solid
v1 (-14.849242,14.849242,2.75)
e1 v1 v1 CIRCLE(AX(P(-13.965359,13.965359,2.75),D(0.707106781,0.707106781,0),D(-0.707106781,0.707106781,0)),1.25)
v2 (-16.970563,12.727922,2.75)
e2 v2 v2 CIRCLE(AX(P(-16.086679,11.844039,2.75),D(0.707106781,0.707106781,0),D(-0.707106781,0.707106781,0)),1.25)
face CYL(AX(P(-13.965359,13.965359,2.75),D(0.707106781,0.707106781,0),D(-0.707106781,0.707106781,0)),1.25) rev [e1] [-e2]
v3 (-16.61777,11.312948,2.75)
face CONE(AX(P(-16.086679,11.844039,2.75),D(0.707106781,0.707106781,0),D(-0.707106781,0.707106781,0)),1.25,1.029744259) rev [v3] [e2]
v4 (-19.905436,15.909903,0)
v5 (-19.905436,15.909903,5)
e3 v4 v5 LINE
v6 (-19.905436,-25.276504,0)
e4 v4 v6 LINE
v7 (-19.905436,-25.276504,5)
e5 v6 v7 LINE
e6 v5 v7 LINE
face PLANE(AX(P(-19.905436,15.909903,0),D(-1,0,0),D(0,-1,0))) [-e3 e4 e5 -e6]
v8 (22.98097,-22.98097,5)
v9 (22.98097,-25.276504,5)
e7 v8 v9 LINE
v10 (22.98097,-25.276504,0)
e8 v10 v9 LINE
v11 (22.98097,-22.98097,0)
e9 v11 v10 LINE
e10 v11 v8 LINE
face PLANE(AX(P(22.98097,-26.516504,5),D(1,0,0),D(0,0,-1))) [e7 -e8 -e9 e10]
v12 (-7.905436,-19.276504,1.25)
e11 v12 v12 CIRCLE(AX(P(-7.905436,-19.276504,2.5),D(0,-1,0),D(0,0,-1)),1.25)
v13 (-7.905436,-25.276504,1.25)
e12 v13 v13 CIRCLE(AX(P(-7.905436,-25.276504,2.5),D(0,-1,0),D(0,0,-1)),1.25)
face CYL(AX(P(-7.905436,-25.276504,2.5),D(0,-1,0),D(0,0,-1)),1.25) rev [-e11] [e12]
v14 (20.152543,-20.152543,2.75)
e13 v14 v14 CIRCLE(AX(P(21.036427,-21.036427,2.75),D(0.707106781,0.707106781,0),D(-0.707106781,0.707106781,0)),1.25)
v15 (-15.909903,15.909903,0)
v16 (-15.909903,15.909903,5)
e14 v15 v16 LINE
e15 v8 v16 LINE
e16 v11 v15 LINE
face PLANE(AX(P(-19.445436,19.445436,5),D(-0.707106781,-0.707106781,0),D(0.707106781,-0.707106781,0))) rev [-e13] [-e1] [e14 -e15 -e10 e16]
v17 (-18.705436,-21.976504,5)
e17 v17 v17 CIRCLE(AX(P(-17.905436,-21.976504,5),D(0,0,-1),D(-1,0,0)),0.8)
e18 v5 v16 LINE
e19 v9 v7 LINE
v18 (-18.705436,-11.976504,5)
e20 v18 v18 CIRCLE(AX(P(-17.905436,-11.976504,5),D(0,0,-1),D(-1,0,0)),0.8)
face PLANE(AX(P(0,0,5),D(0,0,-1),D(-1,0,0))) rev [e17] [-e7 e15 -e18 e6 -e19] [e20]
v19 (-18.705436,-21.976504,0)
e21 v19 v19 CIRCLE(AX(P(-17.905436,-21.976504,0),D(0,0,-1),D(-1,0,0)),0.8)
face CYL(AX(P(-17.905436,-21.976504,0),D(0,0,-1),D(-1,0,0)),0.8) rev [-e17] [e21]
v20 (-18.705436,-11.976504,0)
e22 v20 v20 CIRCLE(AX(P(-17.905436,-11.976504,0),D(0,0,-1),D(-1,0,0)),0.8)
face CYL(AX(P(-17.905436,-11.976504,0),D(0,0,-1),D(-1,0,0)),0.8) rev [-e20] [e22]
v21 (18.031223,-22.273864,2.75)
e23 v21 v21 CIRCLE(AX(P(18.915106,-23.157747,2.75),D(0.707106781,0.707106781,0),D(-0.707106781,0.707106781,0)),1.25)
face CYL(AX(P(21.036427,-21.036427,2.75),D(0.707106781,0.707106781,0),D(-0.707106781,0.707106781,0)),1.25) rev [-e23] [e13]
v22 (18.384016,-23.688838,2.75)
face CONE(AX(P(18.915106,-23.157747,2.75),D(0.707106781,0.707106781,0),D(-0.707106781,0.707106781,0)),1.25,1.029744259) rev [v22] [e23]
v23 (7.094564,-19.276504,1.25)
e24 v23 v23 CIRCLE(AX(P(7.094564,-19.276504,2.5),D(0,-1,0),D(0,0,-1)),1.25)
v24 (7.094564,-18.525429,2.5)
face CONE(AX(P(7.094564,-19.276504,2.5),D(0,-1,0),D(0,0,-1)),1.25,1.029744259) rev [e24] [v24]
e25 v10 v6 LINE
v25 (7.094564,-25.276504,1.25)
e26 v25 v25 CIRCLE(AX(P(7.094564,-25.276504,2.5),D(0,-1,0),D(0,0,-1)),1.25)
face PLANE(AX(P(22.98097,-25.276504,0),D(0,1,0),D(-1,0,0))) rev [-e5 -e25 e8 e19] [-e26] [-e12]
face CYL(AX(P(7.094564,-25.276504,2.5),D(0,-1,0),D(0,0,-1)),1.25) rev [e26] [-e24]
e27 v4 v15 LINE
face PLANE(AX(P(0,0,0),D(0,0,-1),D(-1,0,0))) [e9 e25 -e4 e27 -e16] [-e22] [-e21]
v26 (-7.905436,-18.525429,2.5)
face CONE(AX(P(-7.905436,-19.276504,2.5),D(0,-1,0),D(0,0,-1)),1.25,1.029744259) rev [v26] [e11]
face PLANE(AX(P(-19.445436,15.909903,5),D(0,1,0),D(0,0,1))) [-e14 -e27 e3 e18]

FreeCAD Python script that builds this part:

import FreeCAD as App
import Part
import Sketcher
Q = App.Units.Quantity


def add_polygon(sketch, points):
    """Adds a closed chain of lines whose ends are joined by coincident constraints."""
    first, n = sketch.GeometryCount, len(points)
    for a, b in zip(points, points[1:] + points[:1]):
        sketch.addGeometry(Part.LineSegment(App.Vector(*a, 0), App.Vector(*b, 0)), False)
    for i in range(n):
        sketch.addConstraint(Sketcher.Constraint("Coincident", first + i, 2, first + (i + 1) % n, 1))

doc = App.newDocument("Part")
body = doc.addObject("PartDesign::Body", "Body")

# Sketch on XY plane
sketch1 = doc.addObject("Sketcher::SketchObject", "Sketch")
body.addObject(sketch1)
sketch1.AttachmentSupport = (doc.XY_Plane, [""])
sketch1.MapMode = "FlatFace"
add_polygon(sketch1, [(27, -27), (-19, 19), (-19, -27)])  # lines 0-2
sketch1.addConstraint(Sketcher.Constraint("Vertical", 1))
sketch1.addConstraint(Sketcher.Constraint("Horizontal", 2))
sketch1.addConstraint(Sketcher.Constraint("Equal", 2, 1))
sketch1.addConstraint(Sketcher.Constraint("Distance", 0, 65.0))
sketch1.addConstraint(Sketcher.Constraint("DistanceX", 0, 2, -1, 1, 19.445436))
sketch1.addConstraint(Sketcher.Constraint("DistanceY", -1, 1, 0, 2, 19.445436))
pad1 = doc.addObject("PartDesign::Pad", "Pad")
body.addObject(pad1)
pad1.Profile = sketch1
pad1.Length = 5

# Sketch on an angled plane
sketch2 = doc.addObject("Sketcher::SketchObject", "Sketch001")
body.addObject(sketch2)
sketch2.Placement = App.Placement(App.Vector(0, 0, 0), App.Rotation(App.Vector(0, 0, -1), App.Vector(-0.707106781, 0.707106781, 0), App.Vector(0.707106781, 0.707106781, 0), "ZXY"))
sketch2.addGeometry(Part.Circle(App.Vector(-2.8, 19.7, 0), App.Vector(0, 0, 1), 1.2), False)
sketch2.addGeometry(Part.Circle(App.Vector(-2.8, -29.7, 0), App.Vector(0, 0, 1), 1.2), False)
sketch2.addConstraint(Sketcher.Constraint("Equal", 0, 1))
sketch2.addConstraint(Sketcher.Constraint("Vertical", 0, 3, 1, 3))
sketch2.addConstraint(Sketcher.Constraint("Diameter", 0, 2.5))
sketch2.addConstraint(Sketcher.Constraint("DistanceY", 1, 3, 0, 3, 49.5))
sketch2.addConstraint(Sketcher.Constraint("DistanceX", 0, 3, -1, 1, 2.75))
sketch2.addConstraint(Sketcher.Constraint("DistanceY", -1, 1, 0, 3, 19.75))
doc.recompute()
hole = doc.addObject("PartDesign::Hole", "Hole")
body.addObject(hole)
hole.Profile = sketch2
hole.ThreadType = "None"
hole.Diameter = 2.5
hole.DepthType = "Dimension"
hole.Depth = 3
hole.DrillPoint = "Angled"
hole.DrillPointAngle = 118

# Sketch on XY plane
sketch3 = doc.addObject("Sketcher::SketchObject", "Sketch002")
body.addObject(sketch3)
sketch3.AttachmentSupport = (doc.XY_Plane, [""])
sketch3.MapMode = "FlatFace"
sketch3.AttachmentOffset = App.Placement(App.Vector(0, 0, 5), App.Rotation())
add_polygon(sketch3, [(-19.4, 19.4), (-15.9, 15.9), (-14.5, 17.3), (-18, 20.9)])  # lines 0-3
add_polygon(sketch3, [(23, -23), (26.5, -26.5), (27.9, -25.1), (24.4, -21.6)])  # lines 4-7
sketch3.addConstraint(Sketcher.Constraint("Perpendicular", 0, 1))
sketch3.addConstraint(Sketcher.Constraint("Perpendicular", 1, 2))
sketch3.addConstraint(Sketcher.Constraint("Perpendicular", 2, 3))
sketch3.addConstraint(Sketcher.Constraint("Perpendicular", 3, 4))
sketch3.addConstraint(Sketcher.Constraint("Perpendicular", 4, 5))
sketch3.addConstraint(Sketcher.Constraint("Perpendicular", 5, 6))
sketch3.addConstraint(Sketcher.Constraint("Perpendicular", 6, 7))
sketch3.addConstraint(Sketcher.Constraint("Equal", 2, 4))
sketch3.addConstraint(Sketcher.Constraint("Equal", 3, 5))
sketch3.addConstraint(Sketcher.Constraint("Angle", 0, Q("-45 deg")))
sketch3.addConstraint(Sketcher.Constraint("Distance", 0, 5.0))
sketch3.addConstraint(Sketcher.Constraint("Distance", 1, 2.0))
sketch3.addConstraint(Sketcher.Constraint("DistanceX", 1, 2, -1, 1, 14.495689))
sketch3.addConstraint(Sketcher.Constraint("DistanceY", -1, 1, 2, 2, 20.85965))
sketch3.addConstraint(Sketcher.Constraint("DistanceY", 5, 2, -1, 1, 25.102291))
sketch3.addConstraint(Sketcher.Constraint("DistanceX", -1, 1, 7, 2, 22.98097))
pad2 = doc.addObject("PartDesign::Pad", "Pad001")
body.addObject(pad2)
pad2.Profile = sketch3
pad2.Length = 5
pad2.Reversed = True

# Sketch on XY plane
sketch4 = doc.addObject("Sketcher::SketchObject", "Sketch003")
body.addObject(sketch4)
sketch4.AttachmentSupport = (doc.XY_Plane, [""])
sketch4.MapMode = "FlatFace"
sketch4.AttachmentOffset = App.Placement(App.Vector(0, 0, 5), App.Rotation())
add_polygon(sketch4, [(-14.5, 17.3), (-18, 20.9), (-19.4, 19.4), (-19.4, 12.4)])  # lines 0-3
add_polygon(sketch4, [(24.4, -21.6), (19.4, -26.5), (26.5, -26.5), (27.9, -25.1)])  # lines 4-7
sketch4.addConstraint(Sketcher.Constraint("Vertical", 2))
sketch4.addConstraint(Sketcher.Constraint("Horizontal", 5))
sketch4.addConstraint(Sketcher.Constraint("Perpendicular", 0, 1))
sketch4.addConstraint(Sketcher.Constraint("Parallel", 1, 3))
sketch4.addConstraint(Sketcher.Constraint("Parallel", 3, 4))
sketch4.addConstraint(Sketcher.Constraint("Parallel", 4, 6))
sketch4.addConstraint(Sketcher.Constraint("Perpendicular", 6, 7))
sketch4.addConstraint(Sketcher.Constraint("Equal", 5, 2))
sketch4.addConstraint(Sketcher.Constraint("Equal", 3, 4))
sketch4.addConstraint(Sketcher.Constraint("Equal", 1, 6))
sketch4.addConstraint(Sketcher.Constraint("Distance", 0, 5.0))
sketch4.addConstraint(Sketcher.Constraint("Distance", 1, 2.0))
sketch4.addConstraint(Sketcher.Constraint("DistanceY", -1, 1, 0, 2, 20.85965))
sketch4.addConstraint(Sketcher.Constraint("DistanceX", 3, 2, -1, 1, 14.495689))
sketch4.addConstraint(Sketcher.Constraint("DistanceY", 6, 2, -1, 1, 25.102291))
sketch4.addConstraint(Sketcher.Constraint("DistanceX", 0, 2, 4, 2, 37.476659))
pocket1 = doc.addObject("PartDesign::Pocket", "Pocket")
body.addObject(pocket1)
pocket1.Profile = sketch4
pocket1.Type = "ThroughAll"

# Sketch on XY plane
sketch5 = doc.addObject("Sketcher::SketchObject", "Sketch004")
body.addObject(sketch5)
sketch5.AttachmentSupport = (doc.XY_Plane, [""])
sketch5.MapMode = "FlatFace"
add_polygon(sketch5, [(23, -26.5), (19.4, -26.5), (23, -23)])  # lines 0-2
add_polygon(sketch5, [(-19.4, 12.4), (-19.4, 15.9), (-15.9, 15.9)])  # lines 3-5
sketch5.addConstraint(Sketcher.Constraint("Horizontal", 0))
sketch5.addConstraint(Sketcher.Constraint("Vertical", 2))
sketch5.addConstraint(Sketcher.Constraint("Vertical", 3))
sketch5.addConstraint(Sketcher.Constraint("Horizontal", 4))
sketch5.addConstraint(Sketcher.Constraint("Parallel", 1, 5))
sketch5.addConstraint(Sketcher.Constraint("Equal", 0, 4))
sketch5.addConstraint(Sketcher.Constraint("Equal", 4, 2))
sketch5.addConstraint(Sketcher.Constraint("Distance", 1, 5.0))
sketch5.addConstraint(Sketcher.Constraint("DistanceX", -1, 1, 1, 2, 22.98097))
sketch5.addConstraint(Sketcher.Constraint("DistanceY", 1, 2, -1, 1, 22.98097))
sketch5.addConstraint(Sketcher.Constraint("DistanceY", -1, 1, 5, 2, 12.374369))
sketch5.addConstraint(Sketcher.Constraint("DistanceX", 4, 2, 0, 2, 35.355339))
pad3 = doc.addObject("PartDesign::Pad", "Pad002")
body.addObject(pad3)
pad3.Profile = sketch5
pad3.Type = "UpToLast"

# Sketch on XY plane
sketch6 = doc.addObject("Sketcher::SketchObject", "Sketch005")
body.addObject(sketch6)
sketch6.AttachmentSupport = (doc.XY_Plane, [""])
sketch6.MapMode = "FlatFace"
sketch6.AttachmentOffset = App.Placement(App.Vector(0, 0, 5), App.Rotation())
add_polygon(sketch6, [(-19.45, -26.52), (-19.45, -26.98), (22.98, -26.98), (22.98, -26.52)])  # lines 0-3
sketch6.addConstraint(Sketcher.Constraint("Vertical", 0))
sketch6.addConstraint(Sketcher.Constraint("Horizontal", 1))
sketch6.addConstraint(Sketcher.Constraint("Vertical", 2))
sketch6.addConstraint(Sketcher.Constraint("Horizontal", 3))
sketch6.addConstraint(Sketcher.Constraint("DistanceY", 0, 2, 0, 1, 0.46))
sketch6.addConstraint(Sketcher.Constraint("DistanceX", 1, 1, 1, 2, 42.426407))
sketch6.addConstraint(Sketcher.Constraint("DistanceX", -1, 1, 1, 2, 22.98097))
sketch6.addConstraint(Sketcher.Constraint("DistanceY", 0, 2, -1, 1, 26.976504))
pad4 = doc.addObject("PartDesign::Pad", "Pad003")
body.addObject(pad4)
pad4.Profile = sketch6
pad4.Length = 5
pad4.Reversed = True

# Sketch on XY plane
sketch7 = doc.addObject("Sketcher::SketchObject", "Sketch006")
body.addObject(sketch7)
sketch7.AttachmentSupport = (doc.XY_Plane, [""])
sketch7.MapMode = "FlatFace"
sketch7.AttachmentOffset = App.Placement(App.Vector(0, 0, 5), App.Rotation())
add_polygon(sketch7, [(-19.91, 15.91), (-19.91, -26.98), (-19.45, -26.98), (-19.45, 15.91)])  # lines 0-3
sketch7.addConstraint(Sketcher.Constraint("Vertical", 0))
sketch7.addConstraint(Sketcher.Constraint("Horizontal", 1))
sketch7.addConstraint(Sketcher.Constraint("Vertical", 2))
sketch7.addConstraint(Sketcher.Constraint("Horizontal", 3))
sketch7.addConstraint(Sketcher.Constraint("DistanceX", 1, 1, 1, 2, 0.46))
sketch7.addConstraint(Sketcher.Constraint("DistanceY", 0, 2, 0, 1, 42.886407))
sketch7.addConstraint(Sketcher.Constraint("DistanceX", 0, 2, -1, 1, 19.905436))
sketch7.addConstraint(Sketcher.Constraint("DistanceY", 0, 2, -1, 1, 26.976504))
pad5 = doc.addObject("PartDesign::Pad", "Pad004")
body.addObject(pad5)
pad5.Profile = sketch7
pad5.Length = 5
pad5.Reversed = True

# Sketch on XY plane
sketch8 = doc.addObject("Sketcher::SketchObject", "Sketch007")
body.addObject(sketch8)
sketch8.AttachmentSupport = (doc.XY_Plane, [""])
sketch8.MapMode = "FlatFace"
sketch8.addGeometry(Part.Circle(App.Vector(-17.9, -12, 0), App.Vector(0, 0, 1), 0.8), False)
sketch8.addGeometry(Part.Circle(App.Vector(-17.9, -22, 0), App.Vector(0, 0, 1), 0.8), False)
sketch8.addConstraint(Sketcher.Constraint("Equal", 0, 1))
sketch8.addConstraint(Sketcher.Constraint("Vertical", 0, 3, 1, 3))
sketch8.addConstraint(Sketcher.Constraint("Diameter", 0, 1.6))
sketch8.addConstraint(Sketcher.Constraint("DistanceY", 1, 3, 0, 3, 10.0))
sketch8.addConstraint(Sketcher.Constraint("DistanceX", 0, 3, -1, 1, 17.905436))
sketch8.addConstraint(Sketcher.Constraint("DistanceY", 0, 3, -1, 1, 11.976504))
doc.recompute()
hole2 = doc.addObject("PartDesign::Hole", "Hole001")
body.addObject(hole2)
hole2.Profile = sketch8
hole2.ThreadType = "None"
hole2.Diameter = 1.6
hole2.DepthType = "ThroughAll"
hole2.Reversed = True

# Sketch on XY plane
sketch9 = doc.addObject("Sketcher::SketchObject", "Sketch008")
body.addObject(sketch9)
sketch9.AttachmentSupport = (doc.XY_Plane, [""])
sketch9.MapMode = "FlatFace"
sketch9.AttachmentOffset = App.Placement(App.Vector(0, 0, 5), App.Rotation())
add_polygon(sketch9, [(-19.9, -25.3), (-19.9, -27), (23, -27), (23, -25.3)])  # lines 0-3
sketch9.addConstraint(Sketcher.Constraint("Vertical", 0))
sketch9.addConstraint(Sketcher.Constraint("Horizontal", 1))
sketch9.addConstraint(Sketcher.Constraint("Vertical", 2))
sketch9.addConstraint(Sketcher.Constraint("Horizontal", 3))
sketch9.addConstraint(Sketcher.Constraint("DistanceY", 0, 2, 0, 1, 1.7))
sketch9.addConstraint(Sketcher.Constraint("DistanceX", 1, 1, 1, 2, 42.886407))
sketch9.addConstraint(Sketcher.Constraint("DistanceX", -1, 1, 1, 2, 22.98097))
sketch9.addConstraint(Sketcher.Constraint("DistanceY", 0, 2, -1, 1, 26.976504))
pocket2 = doc.addObject("PartDesign::Pocket", "Pocket001")
body.addObject(pocket2)
pocket2.Profile = sketch9
pocket2.Type = "ThroughAll"

# Sketch on XZ plane
sketch10 = doc.addObject("Sketcher::SketchObject", "Sketch009")
body.addObject(sketch10)
sketch10.AttachmentSupport = (doc.XZ_Plane, [""])
sketch10.MapMode = "FlatFace"
sketch10.AttachmentOffset = App.Placement(App.Vector(0, 0, 25.276504), App.Rotation())
sketch10.addGeometry(Part.Circle(App.Vector(-7.9, 2.5, 0), App.Vector(0, 0, 1), 1.2), False)
sketch10.addGeometry(Part.Circle(App.Vector(7.1, 2.5, 0), App.Vector(0, 0, 1), 1.2), False)
sketch10.addConstraint(Sketcher.Constraint("Equal", 0, 1))
sketch10.addConstraint(Sketcher.Constraint("Horizontal", 0, 3, 1, 3))
sketch10.addConstraint(Sketcher.Constraint("Diameter", 0, 2.5))
sketch10.addConstraint(Sketcher.Constraint("DistanceX", 0, 3, 1, 3, 15.0))
sketch10.addConstraint(Sketcher.Constraint("DistanceY", -1, 1, 0, 3, 2.5))
sketch10.addConstraint(Sketcher.Constraint("DistanceX", 0, 3, -1, 1, 7.905436))
doc.recompute()
hole3 = doc.addObject("PartDesign::Hole", "Hole002")
body.addObject(hole3)
hole3.Profile = sketch10
hole3.ThreadType = "None"
hole3.Diameter = 2.5
hole3.DepthType = "Dimension"
hole3.Depth = 6
hole3.DrillPoint = "Angled"
hole3.DrillPointAngle = 118

doc.recompute()
